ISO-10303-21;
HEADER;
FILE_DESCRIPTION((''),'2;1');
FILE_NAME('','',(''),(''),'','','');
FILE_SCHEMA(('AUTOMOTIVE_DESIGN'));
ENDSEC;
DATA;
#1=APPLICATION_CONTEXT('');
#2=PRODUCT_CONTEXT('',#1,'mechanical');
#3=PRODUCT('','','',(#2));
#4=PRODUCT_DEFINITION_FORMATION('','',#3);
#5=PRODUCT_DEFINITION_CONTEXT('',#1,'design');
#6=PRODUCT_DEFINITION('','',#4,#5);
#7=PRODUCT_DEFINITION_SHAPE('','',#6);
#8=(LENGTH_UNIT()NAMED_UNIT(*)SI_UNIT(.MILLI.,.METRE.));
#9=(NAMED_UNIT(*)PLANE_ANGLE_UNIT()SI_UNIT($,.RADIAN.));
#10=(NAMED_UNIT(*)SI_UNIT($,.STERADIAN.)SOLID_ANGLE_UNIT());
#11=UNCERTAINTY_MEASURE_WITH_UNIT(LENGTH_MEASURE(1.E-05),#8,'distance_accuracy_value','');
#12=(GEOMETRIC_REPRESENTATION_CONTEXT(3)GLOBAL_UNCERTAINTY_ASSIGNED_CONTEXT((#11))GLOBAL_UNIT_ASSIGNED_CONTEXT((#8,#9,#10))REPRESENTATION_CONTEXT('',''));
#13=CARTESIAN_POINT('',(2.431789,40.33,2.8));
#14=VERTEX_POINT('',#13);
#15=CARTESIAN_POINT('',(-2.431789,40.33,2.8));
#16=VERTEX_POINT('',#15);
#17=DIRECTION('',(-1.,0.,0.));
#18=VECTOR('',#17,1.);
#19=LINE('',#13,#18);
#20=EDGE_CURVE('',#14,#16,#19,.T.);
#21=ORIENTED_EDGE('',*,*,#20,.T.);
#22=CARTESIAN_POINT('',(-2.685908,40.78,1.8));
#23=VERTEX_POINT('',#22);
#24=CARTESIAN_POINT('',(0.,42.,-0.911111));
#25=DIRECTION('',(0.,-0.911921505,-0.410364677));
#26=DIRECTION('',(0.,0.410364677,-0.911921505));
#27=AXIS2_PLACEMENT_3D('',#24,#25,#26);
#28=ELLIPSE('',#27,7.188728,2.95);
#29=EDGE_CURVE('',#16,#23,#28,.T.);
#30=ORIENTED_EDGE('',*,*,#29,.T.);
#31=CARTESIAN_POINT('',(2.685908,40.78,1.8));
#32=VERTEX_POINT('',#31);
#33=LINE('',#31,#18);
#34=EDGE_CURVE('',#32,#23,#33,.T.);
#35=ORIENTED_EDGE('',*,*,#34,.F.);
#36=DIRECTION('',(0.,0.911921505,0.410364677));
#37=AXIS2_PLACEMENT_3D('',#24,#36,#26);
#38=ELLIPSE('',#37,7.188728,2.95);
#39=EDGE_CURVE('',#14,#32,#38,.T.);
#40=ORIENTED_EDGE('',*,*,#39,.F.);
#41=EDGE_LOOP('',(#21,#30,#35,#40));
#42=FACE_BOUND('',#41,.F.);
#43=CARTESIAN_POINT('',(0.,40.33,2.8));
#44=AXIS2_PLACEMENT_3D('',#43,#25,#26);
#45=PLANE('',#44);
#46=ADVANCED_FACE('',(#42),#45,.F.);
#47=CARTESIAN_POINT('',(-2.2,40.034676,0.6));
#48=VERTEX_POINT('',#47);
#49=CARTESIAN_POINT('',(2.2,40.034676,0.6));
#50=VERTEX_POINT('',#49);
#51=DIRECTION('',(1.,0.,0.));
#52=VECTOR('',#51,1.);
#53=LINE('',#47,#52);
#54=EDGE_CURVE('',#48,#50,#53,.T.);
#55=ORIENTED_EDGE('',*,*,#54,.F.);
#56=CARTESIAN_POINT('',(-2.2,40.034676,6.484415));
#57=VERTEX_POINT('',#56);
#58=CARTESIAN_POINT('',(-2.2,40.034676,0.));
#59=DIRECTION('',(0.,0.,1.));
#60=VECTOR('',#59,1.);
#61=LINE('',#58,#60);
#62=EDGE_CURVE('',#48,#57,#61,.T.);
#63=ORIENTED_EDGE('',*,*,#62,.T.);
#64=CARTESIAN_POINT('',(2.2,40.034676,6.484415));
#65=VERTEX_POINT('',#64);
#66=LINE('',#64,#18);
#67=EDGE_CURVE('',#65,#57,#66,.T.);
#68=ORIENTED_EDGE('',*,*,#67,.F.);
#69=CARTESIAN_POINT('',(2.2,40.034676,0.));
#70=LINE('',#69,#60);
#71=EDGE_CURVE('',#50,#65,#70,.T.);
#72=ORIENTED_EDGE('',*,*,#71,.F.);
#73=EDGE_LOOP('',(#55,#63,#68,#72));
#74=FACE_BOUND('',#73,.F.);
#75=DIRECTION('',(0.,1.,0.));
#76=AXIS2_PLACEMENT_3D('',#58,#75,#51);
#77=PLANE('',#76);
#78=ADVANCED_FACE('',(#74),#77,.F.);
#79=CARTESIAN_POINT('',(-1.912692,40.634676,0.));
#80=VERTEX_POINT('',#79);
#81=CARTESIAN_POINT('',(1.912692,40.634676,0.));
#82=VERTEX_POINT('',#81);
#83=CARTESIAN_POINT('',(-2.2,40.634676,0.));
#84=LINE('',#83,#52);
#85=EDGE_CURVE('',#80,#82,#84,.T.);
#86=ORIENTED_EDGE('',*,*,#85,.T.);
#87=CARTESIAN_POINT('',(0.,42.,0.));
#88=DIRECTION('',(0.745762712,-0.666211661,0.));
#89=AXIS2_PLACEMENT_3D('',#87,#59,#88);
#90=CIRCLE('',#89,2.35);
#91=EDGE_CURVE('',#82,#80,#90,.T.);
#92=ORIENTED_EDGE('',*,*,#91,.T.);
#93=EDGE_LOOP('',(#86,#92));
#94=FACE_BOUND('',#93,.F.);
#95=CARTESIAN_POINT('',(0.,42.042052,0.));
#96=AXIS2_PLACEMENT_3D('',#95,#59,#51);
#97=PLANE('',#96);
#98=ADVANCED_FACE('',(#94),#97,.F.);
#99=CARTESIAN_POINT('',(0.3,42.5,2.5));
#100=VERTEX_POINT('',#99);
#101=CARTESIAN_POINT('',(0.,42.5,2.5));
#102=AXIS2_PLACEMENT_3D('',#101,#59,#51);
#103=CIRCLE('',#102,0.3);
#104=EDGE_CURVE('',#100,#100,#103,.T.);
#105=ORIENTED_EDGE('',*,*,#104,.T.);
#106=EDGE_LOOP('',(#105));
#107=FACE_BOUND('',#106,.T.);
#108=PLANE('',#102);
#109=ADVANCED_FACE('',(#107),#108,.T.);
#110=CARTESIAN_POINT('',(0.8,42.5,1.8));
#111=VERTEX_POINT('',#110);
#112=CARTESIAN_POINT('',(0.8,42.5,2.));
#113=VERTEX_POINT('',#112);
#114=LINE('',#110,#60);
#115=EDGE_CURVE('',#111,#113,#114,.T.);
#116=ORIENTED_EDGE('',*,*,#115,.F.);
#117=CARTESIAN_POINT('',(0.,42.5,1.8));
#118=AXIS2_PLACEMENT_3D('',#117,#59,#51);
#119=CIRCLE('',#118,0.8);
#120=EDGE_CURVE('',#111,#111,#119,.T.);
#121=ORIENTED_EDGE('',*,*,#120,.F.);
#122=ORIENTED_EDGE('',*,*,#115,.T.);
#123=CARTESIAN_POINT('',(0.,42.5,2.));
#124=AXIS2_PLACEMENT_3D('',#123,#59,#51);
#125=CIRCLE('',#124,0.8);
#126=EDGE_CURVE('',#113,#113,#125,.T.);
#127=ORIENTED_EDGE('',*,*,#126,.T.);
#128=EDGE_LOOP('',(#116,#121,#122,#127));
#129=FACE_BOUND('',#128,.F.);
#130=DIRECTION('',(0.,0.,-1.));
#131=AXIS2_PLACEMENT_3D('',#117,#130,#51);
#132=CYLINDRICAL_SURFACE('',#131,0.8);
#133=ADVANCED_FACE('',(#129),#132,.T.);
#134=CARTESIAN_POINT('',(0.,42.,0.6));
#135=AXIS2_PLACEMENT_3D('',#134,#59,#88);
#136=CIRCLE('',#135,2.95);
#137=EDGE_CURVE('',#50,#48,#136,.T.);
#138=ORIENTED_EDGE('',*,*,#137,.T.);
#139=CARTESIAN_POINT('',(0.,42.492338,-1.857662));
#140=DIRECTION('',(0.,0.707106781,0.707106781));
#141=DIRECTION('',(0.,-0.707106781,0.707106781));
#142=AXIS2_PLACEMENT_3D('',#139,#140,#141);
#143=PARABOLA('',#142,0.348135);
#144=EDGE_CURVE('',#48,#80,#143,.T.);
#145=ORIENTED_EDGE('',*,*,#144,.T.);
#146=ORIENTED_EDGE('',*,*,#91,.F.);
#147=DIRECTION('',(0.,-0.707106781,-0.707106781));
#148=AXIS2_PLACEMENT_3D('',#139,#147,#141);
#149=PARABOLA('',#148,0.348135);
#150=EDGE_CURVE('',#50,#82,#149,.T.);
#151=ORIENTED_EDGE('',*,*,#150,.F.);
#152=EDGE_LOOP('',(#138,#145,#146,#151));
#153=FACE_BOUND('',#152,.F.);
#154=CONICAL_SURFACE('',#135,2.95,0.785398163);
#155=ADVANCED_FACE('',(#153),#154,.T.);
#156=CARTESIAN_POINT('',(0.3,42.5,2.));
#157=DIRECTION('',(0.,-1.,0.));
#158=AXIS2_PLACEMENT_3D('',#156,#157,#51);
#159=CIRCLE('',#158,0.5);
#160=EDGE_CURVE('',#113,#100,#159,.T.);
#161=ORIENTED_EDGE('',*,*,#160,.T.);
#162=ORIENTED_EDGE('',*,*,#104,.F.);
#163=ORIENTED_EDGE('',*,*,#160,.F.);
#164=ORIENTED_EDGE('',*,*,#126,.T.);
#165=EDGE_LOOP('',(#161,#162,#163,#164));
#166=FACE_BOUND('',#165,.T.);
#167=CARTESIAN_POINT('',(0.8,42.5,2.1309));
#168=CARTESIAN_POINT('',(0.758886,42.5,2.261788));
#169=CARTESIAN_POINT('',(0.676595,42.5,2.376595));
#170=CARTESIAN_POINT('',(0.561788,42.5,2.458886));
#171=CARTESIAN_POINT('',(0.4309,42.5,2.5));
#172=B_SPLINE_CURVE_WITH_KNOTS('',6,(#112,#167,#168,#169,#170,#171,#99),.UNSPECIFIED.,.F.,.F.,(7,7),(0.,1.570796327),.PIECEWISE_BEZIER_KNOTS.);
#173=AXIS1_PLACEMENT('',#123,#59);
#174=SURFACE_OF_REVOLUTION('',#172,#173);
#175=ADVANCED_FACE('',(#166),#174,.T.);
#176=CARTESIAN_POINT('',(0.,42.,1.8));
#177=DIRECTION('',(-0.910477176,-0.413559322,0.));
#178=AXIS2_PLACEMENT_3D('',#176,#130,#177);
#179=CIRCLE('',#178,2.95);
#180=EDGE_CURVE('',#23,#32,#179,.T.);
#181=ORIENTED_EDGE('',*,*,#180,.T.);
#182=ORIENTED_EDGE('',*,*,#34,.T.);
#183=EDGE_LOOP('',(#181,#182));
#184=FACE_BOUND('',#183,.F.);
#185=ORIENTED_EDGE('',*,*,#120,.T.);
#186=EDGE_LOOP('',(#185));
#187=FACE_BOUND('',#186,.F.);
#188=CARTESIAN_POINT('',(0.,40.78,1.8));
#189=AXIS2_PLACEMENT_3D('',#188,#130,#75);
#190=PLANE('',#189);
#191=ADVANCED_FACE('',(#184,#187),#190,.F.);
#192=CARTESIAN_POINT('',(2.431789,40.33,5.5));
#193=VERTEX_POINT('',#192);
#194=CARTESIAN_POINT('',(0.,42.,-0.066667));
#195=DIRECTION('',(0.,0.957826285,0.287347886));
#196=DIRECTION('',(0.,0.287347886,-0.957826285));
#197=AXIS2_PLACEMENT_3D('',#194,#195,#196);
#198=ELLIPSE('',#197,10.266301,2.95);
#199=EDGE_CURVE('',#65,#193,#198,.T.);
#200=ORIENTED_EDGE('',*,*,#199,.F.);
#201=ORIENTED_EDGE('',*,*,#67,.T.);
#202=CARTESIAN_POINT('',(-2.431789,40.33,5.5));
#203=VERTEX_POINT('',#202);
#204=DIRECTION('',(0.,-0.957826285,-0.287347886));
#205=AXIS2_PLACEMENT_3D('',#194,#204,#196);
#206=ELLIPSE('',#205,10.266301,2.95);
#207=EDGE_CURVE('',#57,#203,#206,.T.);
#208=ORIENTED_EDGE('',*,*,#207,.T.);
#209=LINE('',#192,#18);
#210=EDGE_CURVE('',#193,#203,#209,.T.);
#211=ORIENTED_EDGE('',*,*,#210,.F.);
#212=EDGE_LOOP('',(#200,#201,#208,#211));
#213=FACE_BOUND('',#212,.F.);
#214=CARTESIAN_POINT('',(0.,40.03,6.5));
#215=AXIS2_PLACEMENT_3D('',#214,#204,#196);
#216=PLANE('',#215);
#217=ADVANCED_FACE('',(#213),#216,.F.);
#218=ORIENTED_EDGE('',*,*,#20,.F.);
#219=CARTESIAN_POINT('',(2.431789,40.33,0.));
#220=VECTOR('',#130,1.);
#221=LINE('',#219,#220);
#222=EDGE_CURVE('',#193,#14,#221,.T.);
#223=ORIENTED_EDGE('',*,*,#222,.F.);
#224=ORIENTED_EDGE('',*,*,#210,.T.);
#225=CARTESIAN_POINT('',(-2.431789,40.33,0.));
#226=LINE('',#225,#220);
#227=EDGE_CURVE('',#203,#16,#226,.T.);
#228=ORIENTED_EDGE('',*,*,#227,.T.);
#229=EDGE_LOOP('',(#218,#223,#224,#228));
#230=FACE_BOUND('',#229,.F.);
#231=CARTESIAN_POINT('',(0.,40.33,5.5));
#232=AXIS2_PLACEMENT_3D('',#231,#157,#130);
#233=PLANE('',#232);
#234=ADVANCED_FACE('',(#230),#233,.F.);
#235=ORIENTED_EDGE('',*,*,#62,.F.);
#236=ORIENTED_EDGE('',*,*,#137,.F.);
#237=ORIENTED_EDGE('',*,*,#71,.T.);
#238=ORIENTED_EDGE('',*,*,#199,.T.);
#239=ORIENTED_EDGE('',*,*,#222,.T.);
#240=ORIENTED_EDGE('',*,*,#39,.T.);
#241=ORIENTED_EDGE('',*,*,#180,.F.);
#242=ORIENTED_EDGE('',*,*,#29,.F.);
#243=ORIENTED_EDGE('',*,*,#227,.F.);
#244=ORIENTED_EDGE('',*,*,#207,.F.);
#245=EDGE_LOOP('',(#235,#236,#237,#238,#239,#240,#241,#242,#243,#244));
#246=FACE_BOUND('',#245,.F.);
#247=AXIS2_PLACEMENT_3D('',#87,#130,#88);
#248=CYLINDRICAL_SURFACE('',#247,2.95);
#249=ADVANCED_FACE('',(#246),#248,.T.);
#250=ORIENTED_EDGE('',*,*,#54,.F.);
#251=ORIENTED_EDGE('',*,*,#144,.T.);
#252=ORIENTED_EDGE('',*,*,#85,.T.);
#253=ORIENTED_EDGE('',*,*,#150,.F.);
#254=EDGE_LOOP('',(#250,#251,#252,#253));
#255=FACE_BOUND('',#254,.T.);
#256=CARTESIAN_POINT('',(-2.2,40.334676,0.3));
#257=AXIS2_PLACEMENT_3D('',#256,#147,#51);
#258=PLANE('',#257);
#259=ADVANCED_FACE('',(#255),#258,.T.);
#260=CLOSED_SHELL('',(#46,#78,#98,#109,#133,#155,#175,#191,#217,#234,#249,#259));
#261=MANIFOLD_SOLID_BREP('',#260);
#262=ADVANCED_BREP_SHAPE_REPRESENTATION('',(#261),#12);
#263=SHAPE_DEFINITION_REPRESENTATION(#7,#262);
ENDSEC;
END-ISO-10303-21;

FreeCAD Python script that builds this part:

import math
import FreeCAD as App
import Part
import Sketcher

V = App.Vector
Q = App.Units.Quantity


def edges_at(feature, points):
    """Names of the edges that pass closest to the given points."""
    edges = feature.Shape.Edges
    near = lambda p: min(range(len(edges)), key=lambda i: edges[i].distToShape(Part.Vertex(*p))[0])
    return sorted({f"Edge{near(p) + 1}" for p in points})

doc = App.newDocument("Part")
body = doc.addObject("PartDesign::Body", "Body")

sketch1 = doc.addObject("Sketcher::SketchObject", "Sketch")
body.addObject(sketch1)
sketch1.AttachmentSupport = (doc.XY_Plane, [""])
sketch1.MapMode = "FlatFace"
sketch1.addGeometry([
    Part.ArcOfCircle(Part.Circle(V(0, 0, 0), V(0, 0, 1), 2.95), math.radians(-41.775348), math.radians(221.775348)),
    Part.LineSegment(V(-2.2, -1.965324, 0), V(2.2, -1.965324, 0)),
], False)
sketch1.addConstraint([
    Sketcher.Constraint("Coincident", 0, 1, 1, 2),
    Sketcher.Constraint("Coincident", 1, 1, 0, 2),
    Sketcher.Constraint("Horizontal", 1),
    Sketcher.Constraint("Coincident", 0, 3, -1, 1),
    Sketcher.Constraint("Radius", 0, Q("2.95 mm")),
    Sketcher.Constraint("DistanceX", 1, 1, 1, 2, Q("4.4 mm")),
])
pad1 = doc.addObject("PartDesign::Pad", "Pad")
body.addObject(pad1)
pad1.Profile = sketch1
pad1.Length = 6.5

sketch2 = doc.addObject("Sketcher::SketchObject", "Sketch001")
body.addObject(sketch2)
sketch2.AttachmentSupport = (doc.YZ_Plane, [""])
sketch2.MapMode = "FlatFace"
sketch2.addGeometry([
    Part.LineSegment(V(-1.97, 6.5, 0), V(-1.67, 5.5, 0)),
    Part.LineSegment(V(-1.67, 5.5, 0), V(-1.67, 2.8, 0)),
    Part.LineSegment(V(-1.67, 2.8, 0), V(-1.22, 1.8, 0)),
    Part.LineSegment(V(-1.22, 1.8, 0), V(4, 1.8, 0)),
    Part.LineSegment(V(4, 1.8, 0), V(4, 6.5, 0)),
    Part.LineSegment(V(4, 6.5, 0), V(-1.97, 6.5, 0)),
], False)
sketch2.addConstraint([
    Sketcher.Constraint("Coincident", 0, 2, 1, 1),
    Sketcher.Constraint("Coincident", 1, 2, 2, 1),
    Sketcher.Constraint("Coincident", 2, 2, 3, 1),
    Sketcher.Constraint("Coincident", 3, 2, 4, 1),
    Sketcher.Constraint("Coincident", 4, 2, 5, 1),
    Sketcher.Constraint("Coincident", 5, 2, 0, 1),
    Sketcher.Constraint("Vertical", 1),
    Sketcher.Constraint("Horizontal", 3),
    Sketcher.Constraint("Vertical", 4),
    Sketcher.Constraint("Horizontal", 5),
    Sketcher.Constraint("DistanceY", 1, 2, 1, 1, Q("2.7 mm")),
    Sketcher.Constraint("DistanceY", 4, 1, 4, 2, Q("4.7 mm")),
    Sketcher.Constraint("DistanceX", -1, 1, 3, 2, Q("4 mm")),
    Sketcher.Constraint("DistanceY", 2, 2, 1, 2, Q("1 mm")),
    Sketcher.Constraint("DistanceX", 3, 1, 3, 2, Q("5.22 mm")),
    Sketcher.Constraint("DistanceX", 5, 2, 5, 1, Q("5.97 mm")),
    Sketcher.Constraint("DistanceY", -1, 1, 0, 2, Q("5.5 mm")),
    Sketcher.Constraint("DistanceX", 5, 2, 0, 2, Q("0.3 mm")),
])
pocket1 = doc.addObject("PartDesign::Pocket", "Pocket")
body.addObject(pocket1)
pocket1.Profile = sketch2
pocket1.Type = "ThroughAll"
pocket1.Midplane = True

sketch3 = doc.addObject("Sketcher::SketchObject", "Sketch002")
body.addObject(sketch3)
sketch3.AttachmentSupport = (doc.XY_Plane, [""])
sketch3.MapMode = "FlatFace"
sketch3.AttachmentOffset = App.Placement(V(0, 0, 1.8), App.Rotation())
sketch3.addGeometry(Part.Circle(V(0, 0.5, 0), V(0, 0, 1), 0.8), False)
sketch3.addConstraint([
    Sketcher.Constraint("PointOnObject", 0, 3, -2),
    Sketcher.Constraint("Diameter", 0, Q("1.6 mm")),
    Sketcher.Constraint("DistanceY", -1, 1, 0, 3, Q("0.5 mm")),
])
pad2 = doc.addObject("PartDesign::Pad", "Pad001")
body.addObject(pad2)
pad2.Profile = sketch3
pad2.Length = 0.7
doc.recompute()

fillet = doc.addObject("PartDesign::Fillet", "Fillet")
body.addObject(fillet)
fillet.Base = (pad2, edges_at(pad2, [(-0.8, 0.5, 2.5)]))
fillet.Radius = 0.5
doc.recompute()

chamfer = doc.addObject("PartDesign::Chamfer", "Chamfer")
body.addObject(chamfer)
chamfer.Base = (fillet, edges_at(fillet, [(0, 2.95, 0), (0, -1.965, 0)]))
chamfer.Size = 0.6
body2 = doc.addObject("PartDesign::Body", "Body001")
doc.recompute()

body.Placement = App.Placement(V(0, 42, 0), App.Rotation(V(0, 0, 1), 0))
boolean = doc.addObject("PartDesign::Boolean", "Boolean")
body2.addObject(boolean)
boolean.Type = "Fuse"
boolean.addObjects([body])

doc.recompute()
